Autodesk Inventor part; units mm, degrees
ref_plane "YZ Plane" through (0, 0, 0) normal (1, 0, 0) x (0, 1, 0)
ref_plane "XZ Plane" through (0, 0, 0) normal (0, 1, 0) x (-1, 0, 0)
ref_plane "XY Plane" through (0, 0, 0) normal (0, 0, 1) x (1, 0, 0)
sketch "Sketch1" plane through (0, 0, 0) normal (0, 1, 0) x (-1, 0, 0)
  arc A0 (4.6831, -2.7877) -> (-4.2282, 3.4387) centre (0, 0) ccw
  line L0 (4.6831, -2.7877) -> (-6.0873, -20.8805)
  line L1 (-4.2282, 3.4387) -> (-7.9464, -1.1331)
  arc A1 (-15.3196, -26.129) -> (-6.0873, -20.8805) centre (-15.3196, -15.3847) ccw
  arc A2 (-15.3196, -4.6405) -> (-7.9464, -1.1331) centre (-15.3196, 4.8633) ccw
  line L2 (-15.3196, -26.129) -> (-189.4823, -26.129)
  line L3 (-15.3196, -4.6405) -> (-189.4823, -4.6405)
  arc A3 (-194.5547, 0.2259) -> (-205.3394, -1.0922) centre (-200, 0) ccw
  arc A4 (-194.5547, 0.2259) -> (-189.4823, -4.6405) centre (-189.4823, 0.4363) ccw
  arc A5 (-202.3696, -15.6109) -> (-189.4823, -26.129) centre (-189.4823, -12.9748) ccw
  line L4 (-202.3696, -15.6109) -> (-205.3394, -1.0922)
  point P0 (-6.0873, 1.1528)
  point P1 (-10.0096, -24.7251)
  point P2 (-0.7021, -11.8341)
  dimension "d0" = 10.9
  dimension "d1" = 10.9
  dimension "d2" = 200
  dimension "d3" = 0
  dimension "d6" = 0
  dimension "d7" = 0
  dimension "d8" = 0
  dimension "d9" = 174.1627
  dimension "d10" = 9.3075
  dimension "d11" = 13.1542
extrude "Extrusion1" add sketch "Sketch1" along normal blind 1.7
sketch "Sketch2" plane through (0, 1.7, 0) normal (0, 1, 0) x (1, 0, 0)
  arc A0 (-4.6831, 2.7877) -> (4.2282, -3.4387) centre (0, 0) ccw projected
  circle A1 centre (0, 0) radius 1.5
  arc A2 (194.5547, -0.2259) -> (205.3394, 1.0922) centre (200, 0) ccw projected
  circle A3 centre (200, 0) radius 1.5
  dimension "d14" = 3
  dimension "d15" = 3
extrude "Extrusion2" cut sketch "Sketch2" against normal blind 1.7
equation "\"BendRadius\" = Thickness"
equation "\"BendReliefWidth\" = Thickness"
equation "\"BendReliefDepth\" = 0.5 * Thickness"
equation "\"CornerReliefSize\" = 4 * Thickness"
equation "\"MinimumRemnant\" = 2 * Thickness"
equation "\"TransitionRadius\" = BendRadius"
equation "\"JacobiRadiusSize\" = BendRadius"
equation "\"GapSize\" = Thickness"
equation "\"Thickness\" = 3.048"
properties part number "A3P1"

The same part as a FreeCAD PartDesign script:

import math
import FreeCAD as App
import Part
import Sketcher
from FreeCAD import Vector
Q = App.Units.Quantity

doc = App.newDocument("Part")
body = doc.addObject("PartDesign::Body", "Body")

# Sketch on XZ plane
sketch1 = body.newObject("Sketcher::SketchObject", "Sketch")
sketch1.AttachmentSupport = (doc.getObject("XZ_Plane"), [""])
sketch1.MapMode = "FlatFace"
sketch1.addGeometry([
    Part.LineSegment(Vector(6, -21, 0), Vector(-5, -3, 0)),  # 0
    Part.ArcOfCircle(Part.Circle(Vector(0, 0, 0), Vector(0, 0, 1), 5), math.radians(39), math.radians(211)),  # 1
    Part.LineSegment(Vector(4, 3, 0), Vector(8, -1, 0)),  # 2
    Part.ArcOfCircle(Part.Circle(Vector(15, 5, 0), Vector(0, 0, 1), 10), math.radians(-141), math.radians(-90)),  # 3
    Part.LineSegment(Vector(15, -5, 0), Vector(189, -5, 0)),  # 4
    Part.ArcOfCircle(Part.Circle(Vector(189, 0, 0), Vector(0, 0, 1), 5), math.radians(-90), math.radians(-2)),  # 5
    Part.ArcOfCircle(Part.Circle(Vector(200, 0, 0), Vector(0, 0, 1), 5), math.radians(-12), math.radians(178)),  # 6
    Part.LineSegment(Vector(205, -1, 0), Vector(202, -16, 0)),  # 7
    Part.ArcOfCircle(Part.Circle(Vector(189, -13, 0), Vector(0, 0, 1), 13), math.radians(-90), math.radians(-12)),  # 8
    Part.LineSegment(Vector(189, -26, 0), Vector(15, -26, 0)),  # 9
    Part.ArcOfCircle(Part.Circle(Vector(15, -15, 0), Vector(0, 0, 1), 11), math.radians(-149), math.radians(-90)),  # 10
], False)
sketch1.addConstraint([
    Sketcher.Constraint("Tangent", 0, 2, 1, 2),
    Sketcher.Constraint("Tangent", 1, 1, 2, 1),
    Sketcher.Constraint("Tangent", 2, 2, 3, 1),
    Sketcher.Constraint("Tangent", 3, 2, 4, 1),
    Sketcher.Constraint("Tangent", 4, 2, 5, 1),
    Sketcher.Constraint("Tangent", 5, 2, 6, 2),
    Sketcher.Constraint("Tangent", 6, 1, 7, 1),
    Sketcher.Constraint("Tangent", 7, 2, 8, 2),
    Sketcher.Constraint("Tangent", 8, 1, 9, 1),
    Sketcher.Constraint("Tangent", 9, 2, 10, 2),
    Sketcher.Constraint("Tangent", 10, 1, 0, 1),
    Sketcher.Constraint("Horizontal", 4),
    Sketcher.Constraint("Horizontal", 9),
    Sketcher.Constraint("Coincident", 1, 3, -1, 1),
    Sketcher.Constraint("Equal", 1, 6),
    Sketcher.Constraint("PointOnObject", 6, 3, -1),
    Sketcher.Constraint("Vertical", 5, 3, 8, 3),
    Sketcher.Constraint("Vertical", 3, 3, 10, 3),
    Sketcher.Constraint("Radius", 1, Q("5.45 mm")),
    Sketcher.Constraint("DistanceX", -1, 1, 6, 3, Q("200 mm")),
    Sketcher.Constraint("Radius", 8, Q("13.1541 mm")),
    Sketcher.Constraint("DistanceX", 4, 1, 4, 2, Q("174.1627 mm")),
    Sketcher.Constraint("Angle", 2, Q("-50.879 deg")),
    Sketcher.Constraint("Angle", 7, Q("-101.5604 deg")),
    Sketcher.Constraint("Radius", 3, Q("9.5038 mm")),
    Sketcher.Constraint("Radius", 5, Q("5.0768 mm")),
    Sketcher.Constraint("Radius", 10, Q("10.7443 mm")),
])
pad1 = body.newObject("PartDesign::Pad", "Pad")
pad1.Profile = sketch1
pad1.Length = 1.7
pad1.Reversed = True

# Sketch on XZ plane
sketch2 = body.newObject("Sketcher::SketchObject", "Sketch001")
sketch2.AttachmentSupport = (doc.getObject("XZ_Plane"), [""])
sketch2.MapMode = "FlatFace"
sketch2.AttachmentOffset = App.Placement(Vector(0, 0, -1.7), App.Rotation())
sketch2.addGeometry([
    Part.Circle(Vector(0, 0, 0), Vector(0, 0, 1), 1.5),
    Part.Circle(Vector(200, 0, 0), Vector(0, 0, 1), 1.5),
], False)
sketch2.addConstraint([
    Sketcher.Constraint("Coincident", 0, 3, -1, 1),
    Sketcher.Constraint("Equal", 0, 1),
    Sketcher.Constraint("PointOnObject", 1, 3, -1),
    Sketcher.Constraint("Diameter", 0, Q("3 mm")),
    Sketcher.Constraint("DistanceX", -1, 1, 1, 3, Q("200 mm")),
])
pocket1 = body.newObject("PartDesign::Pocket", "Pocket")
pocket1.Profile = sketch2
pocket1.Length = 1.7
pocket1.Reversed = True

doc.recompute()
